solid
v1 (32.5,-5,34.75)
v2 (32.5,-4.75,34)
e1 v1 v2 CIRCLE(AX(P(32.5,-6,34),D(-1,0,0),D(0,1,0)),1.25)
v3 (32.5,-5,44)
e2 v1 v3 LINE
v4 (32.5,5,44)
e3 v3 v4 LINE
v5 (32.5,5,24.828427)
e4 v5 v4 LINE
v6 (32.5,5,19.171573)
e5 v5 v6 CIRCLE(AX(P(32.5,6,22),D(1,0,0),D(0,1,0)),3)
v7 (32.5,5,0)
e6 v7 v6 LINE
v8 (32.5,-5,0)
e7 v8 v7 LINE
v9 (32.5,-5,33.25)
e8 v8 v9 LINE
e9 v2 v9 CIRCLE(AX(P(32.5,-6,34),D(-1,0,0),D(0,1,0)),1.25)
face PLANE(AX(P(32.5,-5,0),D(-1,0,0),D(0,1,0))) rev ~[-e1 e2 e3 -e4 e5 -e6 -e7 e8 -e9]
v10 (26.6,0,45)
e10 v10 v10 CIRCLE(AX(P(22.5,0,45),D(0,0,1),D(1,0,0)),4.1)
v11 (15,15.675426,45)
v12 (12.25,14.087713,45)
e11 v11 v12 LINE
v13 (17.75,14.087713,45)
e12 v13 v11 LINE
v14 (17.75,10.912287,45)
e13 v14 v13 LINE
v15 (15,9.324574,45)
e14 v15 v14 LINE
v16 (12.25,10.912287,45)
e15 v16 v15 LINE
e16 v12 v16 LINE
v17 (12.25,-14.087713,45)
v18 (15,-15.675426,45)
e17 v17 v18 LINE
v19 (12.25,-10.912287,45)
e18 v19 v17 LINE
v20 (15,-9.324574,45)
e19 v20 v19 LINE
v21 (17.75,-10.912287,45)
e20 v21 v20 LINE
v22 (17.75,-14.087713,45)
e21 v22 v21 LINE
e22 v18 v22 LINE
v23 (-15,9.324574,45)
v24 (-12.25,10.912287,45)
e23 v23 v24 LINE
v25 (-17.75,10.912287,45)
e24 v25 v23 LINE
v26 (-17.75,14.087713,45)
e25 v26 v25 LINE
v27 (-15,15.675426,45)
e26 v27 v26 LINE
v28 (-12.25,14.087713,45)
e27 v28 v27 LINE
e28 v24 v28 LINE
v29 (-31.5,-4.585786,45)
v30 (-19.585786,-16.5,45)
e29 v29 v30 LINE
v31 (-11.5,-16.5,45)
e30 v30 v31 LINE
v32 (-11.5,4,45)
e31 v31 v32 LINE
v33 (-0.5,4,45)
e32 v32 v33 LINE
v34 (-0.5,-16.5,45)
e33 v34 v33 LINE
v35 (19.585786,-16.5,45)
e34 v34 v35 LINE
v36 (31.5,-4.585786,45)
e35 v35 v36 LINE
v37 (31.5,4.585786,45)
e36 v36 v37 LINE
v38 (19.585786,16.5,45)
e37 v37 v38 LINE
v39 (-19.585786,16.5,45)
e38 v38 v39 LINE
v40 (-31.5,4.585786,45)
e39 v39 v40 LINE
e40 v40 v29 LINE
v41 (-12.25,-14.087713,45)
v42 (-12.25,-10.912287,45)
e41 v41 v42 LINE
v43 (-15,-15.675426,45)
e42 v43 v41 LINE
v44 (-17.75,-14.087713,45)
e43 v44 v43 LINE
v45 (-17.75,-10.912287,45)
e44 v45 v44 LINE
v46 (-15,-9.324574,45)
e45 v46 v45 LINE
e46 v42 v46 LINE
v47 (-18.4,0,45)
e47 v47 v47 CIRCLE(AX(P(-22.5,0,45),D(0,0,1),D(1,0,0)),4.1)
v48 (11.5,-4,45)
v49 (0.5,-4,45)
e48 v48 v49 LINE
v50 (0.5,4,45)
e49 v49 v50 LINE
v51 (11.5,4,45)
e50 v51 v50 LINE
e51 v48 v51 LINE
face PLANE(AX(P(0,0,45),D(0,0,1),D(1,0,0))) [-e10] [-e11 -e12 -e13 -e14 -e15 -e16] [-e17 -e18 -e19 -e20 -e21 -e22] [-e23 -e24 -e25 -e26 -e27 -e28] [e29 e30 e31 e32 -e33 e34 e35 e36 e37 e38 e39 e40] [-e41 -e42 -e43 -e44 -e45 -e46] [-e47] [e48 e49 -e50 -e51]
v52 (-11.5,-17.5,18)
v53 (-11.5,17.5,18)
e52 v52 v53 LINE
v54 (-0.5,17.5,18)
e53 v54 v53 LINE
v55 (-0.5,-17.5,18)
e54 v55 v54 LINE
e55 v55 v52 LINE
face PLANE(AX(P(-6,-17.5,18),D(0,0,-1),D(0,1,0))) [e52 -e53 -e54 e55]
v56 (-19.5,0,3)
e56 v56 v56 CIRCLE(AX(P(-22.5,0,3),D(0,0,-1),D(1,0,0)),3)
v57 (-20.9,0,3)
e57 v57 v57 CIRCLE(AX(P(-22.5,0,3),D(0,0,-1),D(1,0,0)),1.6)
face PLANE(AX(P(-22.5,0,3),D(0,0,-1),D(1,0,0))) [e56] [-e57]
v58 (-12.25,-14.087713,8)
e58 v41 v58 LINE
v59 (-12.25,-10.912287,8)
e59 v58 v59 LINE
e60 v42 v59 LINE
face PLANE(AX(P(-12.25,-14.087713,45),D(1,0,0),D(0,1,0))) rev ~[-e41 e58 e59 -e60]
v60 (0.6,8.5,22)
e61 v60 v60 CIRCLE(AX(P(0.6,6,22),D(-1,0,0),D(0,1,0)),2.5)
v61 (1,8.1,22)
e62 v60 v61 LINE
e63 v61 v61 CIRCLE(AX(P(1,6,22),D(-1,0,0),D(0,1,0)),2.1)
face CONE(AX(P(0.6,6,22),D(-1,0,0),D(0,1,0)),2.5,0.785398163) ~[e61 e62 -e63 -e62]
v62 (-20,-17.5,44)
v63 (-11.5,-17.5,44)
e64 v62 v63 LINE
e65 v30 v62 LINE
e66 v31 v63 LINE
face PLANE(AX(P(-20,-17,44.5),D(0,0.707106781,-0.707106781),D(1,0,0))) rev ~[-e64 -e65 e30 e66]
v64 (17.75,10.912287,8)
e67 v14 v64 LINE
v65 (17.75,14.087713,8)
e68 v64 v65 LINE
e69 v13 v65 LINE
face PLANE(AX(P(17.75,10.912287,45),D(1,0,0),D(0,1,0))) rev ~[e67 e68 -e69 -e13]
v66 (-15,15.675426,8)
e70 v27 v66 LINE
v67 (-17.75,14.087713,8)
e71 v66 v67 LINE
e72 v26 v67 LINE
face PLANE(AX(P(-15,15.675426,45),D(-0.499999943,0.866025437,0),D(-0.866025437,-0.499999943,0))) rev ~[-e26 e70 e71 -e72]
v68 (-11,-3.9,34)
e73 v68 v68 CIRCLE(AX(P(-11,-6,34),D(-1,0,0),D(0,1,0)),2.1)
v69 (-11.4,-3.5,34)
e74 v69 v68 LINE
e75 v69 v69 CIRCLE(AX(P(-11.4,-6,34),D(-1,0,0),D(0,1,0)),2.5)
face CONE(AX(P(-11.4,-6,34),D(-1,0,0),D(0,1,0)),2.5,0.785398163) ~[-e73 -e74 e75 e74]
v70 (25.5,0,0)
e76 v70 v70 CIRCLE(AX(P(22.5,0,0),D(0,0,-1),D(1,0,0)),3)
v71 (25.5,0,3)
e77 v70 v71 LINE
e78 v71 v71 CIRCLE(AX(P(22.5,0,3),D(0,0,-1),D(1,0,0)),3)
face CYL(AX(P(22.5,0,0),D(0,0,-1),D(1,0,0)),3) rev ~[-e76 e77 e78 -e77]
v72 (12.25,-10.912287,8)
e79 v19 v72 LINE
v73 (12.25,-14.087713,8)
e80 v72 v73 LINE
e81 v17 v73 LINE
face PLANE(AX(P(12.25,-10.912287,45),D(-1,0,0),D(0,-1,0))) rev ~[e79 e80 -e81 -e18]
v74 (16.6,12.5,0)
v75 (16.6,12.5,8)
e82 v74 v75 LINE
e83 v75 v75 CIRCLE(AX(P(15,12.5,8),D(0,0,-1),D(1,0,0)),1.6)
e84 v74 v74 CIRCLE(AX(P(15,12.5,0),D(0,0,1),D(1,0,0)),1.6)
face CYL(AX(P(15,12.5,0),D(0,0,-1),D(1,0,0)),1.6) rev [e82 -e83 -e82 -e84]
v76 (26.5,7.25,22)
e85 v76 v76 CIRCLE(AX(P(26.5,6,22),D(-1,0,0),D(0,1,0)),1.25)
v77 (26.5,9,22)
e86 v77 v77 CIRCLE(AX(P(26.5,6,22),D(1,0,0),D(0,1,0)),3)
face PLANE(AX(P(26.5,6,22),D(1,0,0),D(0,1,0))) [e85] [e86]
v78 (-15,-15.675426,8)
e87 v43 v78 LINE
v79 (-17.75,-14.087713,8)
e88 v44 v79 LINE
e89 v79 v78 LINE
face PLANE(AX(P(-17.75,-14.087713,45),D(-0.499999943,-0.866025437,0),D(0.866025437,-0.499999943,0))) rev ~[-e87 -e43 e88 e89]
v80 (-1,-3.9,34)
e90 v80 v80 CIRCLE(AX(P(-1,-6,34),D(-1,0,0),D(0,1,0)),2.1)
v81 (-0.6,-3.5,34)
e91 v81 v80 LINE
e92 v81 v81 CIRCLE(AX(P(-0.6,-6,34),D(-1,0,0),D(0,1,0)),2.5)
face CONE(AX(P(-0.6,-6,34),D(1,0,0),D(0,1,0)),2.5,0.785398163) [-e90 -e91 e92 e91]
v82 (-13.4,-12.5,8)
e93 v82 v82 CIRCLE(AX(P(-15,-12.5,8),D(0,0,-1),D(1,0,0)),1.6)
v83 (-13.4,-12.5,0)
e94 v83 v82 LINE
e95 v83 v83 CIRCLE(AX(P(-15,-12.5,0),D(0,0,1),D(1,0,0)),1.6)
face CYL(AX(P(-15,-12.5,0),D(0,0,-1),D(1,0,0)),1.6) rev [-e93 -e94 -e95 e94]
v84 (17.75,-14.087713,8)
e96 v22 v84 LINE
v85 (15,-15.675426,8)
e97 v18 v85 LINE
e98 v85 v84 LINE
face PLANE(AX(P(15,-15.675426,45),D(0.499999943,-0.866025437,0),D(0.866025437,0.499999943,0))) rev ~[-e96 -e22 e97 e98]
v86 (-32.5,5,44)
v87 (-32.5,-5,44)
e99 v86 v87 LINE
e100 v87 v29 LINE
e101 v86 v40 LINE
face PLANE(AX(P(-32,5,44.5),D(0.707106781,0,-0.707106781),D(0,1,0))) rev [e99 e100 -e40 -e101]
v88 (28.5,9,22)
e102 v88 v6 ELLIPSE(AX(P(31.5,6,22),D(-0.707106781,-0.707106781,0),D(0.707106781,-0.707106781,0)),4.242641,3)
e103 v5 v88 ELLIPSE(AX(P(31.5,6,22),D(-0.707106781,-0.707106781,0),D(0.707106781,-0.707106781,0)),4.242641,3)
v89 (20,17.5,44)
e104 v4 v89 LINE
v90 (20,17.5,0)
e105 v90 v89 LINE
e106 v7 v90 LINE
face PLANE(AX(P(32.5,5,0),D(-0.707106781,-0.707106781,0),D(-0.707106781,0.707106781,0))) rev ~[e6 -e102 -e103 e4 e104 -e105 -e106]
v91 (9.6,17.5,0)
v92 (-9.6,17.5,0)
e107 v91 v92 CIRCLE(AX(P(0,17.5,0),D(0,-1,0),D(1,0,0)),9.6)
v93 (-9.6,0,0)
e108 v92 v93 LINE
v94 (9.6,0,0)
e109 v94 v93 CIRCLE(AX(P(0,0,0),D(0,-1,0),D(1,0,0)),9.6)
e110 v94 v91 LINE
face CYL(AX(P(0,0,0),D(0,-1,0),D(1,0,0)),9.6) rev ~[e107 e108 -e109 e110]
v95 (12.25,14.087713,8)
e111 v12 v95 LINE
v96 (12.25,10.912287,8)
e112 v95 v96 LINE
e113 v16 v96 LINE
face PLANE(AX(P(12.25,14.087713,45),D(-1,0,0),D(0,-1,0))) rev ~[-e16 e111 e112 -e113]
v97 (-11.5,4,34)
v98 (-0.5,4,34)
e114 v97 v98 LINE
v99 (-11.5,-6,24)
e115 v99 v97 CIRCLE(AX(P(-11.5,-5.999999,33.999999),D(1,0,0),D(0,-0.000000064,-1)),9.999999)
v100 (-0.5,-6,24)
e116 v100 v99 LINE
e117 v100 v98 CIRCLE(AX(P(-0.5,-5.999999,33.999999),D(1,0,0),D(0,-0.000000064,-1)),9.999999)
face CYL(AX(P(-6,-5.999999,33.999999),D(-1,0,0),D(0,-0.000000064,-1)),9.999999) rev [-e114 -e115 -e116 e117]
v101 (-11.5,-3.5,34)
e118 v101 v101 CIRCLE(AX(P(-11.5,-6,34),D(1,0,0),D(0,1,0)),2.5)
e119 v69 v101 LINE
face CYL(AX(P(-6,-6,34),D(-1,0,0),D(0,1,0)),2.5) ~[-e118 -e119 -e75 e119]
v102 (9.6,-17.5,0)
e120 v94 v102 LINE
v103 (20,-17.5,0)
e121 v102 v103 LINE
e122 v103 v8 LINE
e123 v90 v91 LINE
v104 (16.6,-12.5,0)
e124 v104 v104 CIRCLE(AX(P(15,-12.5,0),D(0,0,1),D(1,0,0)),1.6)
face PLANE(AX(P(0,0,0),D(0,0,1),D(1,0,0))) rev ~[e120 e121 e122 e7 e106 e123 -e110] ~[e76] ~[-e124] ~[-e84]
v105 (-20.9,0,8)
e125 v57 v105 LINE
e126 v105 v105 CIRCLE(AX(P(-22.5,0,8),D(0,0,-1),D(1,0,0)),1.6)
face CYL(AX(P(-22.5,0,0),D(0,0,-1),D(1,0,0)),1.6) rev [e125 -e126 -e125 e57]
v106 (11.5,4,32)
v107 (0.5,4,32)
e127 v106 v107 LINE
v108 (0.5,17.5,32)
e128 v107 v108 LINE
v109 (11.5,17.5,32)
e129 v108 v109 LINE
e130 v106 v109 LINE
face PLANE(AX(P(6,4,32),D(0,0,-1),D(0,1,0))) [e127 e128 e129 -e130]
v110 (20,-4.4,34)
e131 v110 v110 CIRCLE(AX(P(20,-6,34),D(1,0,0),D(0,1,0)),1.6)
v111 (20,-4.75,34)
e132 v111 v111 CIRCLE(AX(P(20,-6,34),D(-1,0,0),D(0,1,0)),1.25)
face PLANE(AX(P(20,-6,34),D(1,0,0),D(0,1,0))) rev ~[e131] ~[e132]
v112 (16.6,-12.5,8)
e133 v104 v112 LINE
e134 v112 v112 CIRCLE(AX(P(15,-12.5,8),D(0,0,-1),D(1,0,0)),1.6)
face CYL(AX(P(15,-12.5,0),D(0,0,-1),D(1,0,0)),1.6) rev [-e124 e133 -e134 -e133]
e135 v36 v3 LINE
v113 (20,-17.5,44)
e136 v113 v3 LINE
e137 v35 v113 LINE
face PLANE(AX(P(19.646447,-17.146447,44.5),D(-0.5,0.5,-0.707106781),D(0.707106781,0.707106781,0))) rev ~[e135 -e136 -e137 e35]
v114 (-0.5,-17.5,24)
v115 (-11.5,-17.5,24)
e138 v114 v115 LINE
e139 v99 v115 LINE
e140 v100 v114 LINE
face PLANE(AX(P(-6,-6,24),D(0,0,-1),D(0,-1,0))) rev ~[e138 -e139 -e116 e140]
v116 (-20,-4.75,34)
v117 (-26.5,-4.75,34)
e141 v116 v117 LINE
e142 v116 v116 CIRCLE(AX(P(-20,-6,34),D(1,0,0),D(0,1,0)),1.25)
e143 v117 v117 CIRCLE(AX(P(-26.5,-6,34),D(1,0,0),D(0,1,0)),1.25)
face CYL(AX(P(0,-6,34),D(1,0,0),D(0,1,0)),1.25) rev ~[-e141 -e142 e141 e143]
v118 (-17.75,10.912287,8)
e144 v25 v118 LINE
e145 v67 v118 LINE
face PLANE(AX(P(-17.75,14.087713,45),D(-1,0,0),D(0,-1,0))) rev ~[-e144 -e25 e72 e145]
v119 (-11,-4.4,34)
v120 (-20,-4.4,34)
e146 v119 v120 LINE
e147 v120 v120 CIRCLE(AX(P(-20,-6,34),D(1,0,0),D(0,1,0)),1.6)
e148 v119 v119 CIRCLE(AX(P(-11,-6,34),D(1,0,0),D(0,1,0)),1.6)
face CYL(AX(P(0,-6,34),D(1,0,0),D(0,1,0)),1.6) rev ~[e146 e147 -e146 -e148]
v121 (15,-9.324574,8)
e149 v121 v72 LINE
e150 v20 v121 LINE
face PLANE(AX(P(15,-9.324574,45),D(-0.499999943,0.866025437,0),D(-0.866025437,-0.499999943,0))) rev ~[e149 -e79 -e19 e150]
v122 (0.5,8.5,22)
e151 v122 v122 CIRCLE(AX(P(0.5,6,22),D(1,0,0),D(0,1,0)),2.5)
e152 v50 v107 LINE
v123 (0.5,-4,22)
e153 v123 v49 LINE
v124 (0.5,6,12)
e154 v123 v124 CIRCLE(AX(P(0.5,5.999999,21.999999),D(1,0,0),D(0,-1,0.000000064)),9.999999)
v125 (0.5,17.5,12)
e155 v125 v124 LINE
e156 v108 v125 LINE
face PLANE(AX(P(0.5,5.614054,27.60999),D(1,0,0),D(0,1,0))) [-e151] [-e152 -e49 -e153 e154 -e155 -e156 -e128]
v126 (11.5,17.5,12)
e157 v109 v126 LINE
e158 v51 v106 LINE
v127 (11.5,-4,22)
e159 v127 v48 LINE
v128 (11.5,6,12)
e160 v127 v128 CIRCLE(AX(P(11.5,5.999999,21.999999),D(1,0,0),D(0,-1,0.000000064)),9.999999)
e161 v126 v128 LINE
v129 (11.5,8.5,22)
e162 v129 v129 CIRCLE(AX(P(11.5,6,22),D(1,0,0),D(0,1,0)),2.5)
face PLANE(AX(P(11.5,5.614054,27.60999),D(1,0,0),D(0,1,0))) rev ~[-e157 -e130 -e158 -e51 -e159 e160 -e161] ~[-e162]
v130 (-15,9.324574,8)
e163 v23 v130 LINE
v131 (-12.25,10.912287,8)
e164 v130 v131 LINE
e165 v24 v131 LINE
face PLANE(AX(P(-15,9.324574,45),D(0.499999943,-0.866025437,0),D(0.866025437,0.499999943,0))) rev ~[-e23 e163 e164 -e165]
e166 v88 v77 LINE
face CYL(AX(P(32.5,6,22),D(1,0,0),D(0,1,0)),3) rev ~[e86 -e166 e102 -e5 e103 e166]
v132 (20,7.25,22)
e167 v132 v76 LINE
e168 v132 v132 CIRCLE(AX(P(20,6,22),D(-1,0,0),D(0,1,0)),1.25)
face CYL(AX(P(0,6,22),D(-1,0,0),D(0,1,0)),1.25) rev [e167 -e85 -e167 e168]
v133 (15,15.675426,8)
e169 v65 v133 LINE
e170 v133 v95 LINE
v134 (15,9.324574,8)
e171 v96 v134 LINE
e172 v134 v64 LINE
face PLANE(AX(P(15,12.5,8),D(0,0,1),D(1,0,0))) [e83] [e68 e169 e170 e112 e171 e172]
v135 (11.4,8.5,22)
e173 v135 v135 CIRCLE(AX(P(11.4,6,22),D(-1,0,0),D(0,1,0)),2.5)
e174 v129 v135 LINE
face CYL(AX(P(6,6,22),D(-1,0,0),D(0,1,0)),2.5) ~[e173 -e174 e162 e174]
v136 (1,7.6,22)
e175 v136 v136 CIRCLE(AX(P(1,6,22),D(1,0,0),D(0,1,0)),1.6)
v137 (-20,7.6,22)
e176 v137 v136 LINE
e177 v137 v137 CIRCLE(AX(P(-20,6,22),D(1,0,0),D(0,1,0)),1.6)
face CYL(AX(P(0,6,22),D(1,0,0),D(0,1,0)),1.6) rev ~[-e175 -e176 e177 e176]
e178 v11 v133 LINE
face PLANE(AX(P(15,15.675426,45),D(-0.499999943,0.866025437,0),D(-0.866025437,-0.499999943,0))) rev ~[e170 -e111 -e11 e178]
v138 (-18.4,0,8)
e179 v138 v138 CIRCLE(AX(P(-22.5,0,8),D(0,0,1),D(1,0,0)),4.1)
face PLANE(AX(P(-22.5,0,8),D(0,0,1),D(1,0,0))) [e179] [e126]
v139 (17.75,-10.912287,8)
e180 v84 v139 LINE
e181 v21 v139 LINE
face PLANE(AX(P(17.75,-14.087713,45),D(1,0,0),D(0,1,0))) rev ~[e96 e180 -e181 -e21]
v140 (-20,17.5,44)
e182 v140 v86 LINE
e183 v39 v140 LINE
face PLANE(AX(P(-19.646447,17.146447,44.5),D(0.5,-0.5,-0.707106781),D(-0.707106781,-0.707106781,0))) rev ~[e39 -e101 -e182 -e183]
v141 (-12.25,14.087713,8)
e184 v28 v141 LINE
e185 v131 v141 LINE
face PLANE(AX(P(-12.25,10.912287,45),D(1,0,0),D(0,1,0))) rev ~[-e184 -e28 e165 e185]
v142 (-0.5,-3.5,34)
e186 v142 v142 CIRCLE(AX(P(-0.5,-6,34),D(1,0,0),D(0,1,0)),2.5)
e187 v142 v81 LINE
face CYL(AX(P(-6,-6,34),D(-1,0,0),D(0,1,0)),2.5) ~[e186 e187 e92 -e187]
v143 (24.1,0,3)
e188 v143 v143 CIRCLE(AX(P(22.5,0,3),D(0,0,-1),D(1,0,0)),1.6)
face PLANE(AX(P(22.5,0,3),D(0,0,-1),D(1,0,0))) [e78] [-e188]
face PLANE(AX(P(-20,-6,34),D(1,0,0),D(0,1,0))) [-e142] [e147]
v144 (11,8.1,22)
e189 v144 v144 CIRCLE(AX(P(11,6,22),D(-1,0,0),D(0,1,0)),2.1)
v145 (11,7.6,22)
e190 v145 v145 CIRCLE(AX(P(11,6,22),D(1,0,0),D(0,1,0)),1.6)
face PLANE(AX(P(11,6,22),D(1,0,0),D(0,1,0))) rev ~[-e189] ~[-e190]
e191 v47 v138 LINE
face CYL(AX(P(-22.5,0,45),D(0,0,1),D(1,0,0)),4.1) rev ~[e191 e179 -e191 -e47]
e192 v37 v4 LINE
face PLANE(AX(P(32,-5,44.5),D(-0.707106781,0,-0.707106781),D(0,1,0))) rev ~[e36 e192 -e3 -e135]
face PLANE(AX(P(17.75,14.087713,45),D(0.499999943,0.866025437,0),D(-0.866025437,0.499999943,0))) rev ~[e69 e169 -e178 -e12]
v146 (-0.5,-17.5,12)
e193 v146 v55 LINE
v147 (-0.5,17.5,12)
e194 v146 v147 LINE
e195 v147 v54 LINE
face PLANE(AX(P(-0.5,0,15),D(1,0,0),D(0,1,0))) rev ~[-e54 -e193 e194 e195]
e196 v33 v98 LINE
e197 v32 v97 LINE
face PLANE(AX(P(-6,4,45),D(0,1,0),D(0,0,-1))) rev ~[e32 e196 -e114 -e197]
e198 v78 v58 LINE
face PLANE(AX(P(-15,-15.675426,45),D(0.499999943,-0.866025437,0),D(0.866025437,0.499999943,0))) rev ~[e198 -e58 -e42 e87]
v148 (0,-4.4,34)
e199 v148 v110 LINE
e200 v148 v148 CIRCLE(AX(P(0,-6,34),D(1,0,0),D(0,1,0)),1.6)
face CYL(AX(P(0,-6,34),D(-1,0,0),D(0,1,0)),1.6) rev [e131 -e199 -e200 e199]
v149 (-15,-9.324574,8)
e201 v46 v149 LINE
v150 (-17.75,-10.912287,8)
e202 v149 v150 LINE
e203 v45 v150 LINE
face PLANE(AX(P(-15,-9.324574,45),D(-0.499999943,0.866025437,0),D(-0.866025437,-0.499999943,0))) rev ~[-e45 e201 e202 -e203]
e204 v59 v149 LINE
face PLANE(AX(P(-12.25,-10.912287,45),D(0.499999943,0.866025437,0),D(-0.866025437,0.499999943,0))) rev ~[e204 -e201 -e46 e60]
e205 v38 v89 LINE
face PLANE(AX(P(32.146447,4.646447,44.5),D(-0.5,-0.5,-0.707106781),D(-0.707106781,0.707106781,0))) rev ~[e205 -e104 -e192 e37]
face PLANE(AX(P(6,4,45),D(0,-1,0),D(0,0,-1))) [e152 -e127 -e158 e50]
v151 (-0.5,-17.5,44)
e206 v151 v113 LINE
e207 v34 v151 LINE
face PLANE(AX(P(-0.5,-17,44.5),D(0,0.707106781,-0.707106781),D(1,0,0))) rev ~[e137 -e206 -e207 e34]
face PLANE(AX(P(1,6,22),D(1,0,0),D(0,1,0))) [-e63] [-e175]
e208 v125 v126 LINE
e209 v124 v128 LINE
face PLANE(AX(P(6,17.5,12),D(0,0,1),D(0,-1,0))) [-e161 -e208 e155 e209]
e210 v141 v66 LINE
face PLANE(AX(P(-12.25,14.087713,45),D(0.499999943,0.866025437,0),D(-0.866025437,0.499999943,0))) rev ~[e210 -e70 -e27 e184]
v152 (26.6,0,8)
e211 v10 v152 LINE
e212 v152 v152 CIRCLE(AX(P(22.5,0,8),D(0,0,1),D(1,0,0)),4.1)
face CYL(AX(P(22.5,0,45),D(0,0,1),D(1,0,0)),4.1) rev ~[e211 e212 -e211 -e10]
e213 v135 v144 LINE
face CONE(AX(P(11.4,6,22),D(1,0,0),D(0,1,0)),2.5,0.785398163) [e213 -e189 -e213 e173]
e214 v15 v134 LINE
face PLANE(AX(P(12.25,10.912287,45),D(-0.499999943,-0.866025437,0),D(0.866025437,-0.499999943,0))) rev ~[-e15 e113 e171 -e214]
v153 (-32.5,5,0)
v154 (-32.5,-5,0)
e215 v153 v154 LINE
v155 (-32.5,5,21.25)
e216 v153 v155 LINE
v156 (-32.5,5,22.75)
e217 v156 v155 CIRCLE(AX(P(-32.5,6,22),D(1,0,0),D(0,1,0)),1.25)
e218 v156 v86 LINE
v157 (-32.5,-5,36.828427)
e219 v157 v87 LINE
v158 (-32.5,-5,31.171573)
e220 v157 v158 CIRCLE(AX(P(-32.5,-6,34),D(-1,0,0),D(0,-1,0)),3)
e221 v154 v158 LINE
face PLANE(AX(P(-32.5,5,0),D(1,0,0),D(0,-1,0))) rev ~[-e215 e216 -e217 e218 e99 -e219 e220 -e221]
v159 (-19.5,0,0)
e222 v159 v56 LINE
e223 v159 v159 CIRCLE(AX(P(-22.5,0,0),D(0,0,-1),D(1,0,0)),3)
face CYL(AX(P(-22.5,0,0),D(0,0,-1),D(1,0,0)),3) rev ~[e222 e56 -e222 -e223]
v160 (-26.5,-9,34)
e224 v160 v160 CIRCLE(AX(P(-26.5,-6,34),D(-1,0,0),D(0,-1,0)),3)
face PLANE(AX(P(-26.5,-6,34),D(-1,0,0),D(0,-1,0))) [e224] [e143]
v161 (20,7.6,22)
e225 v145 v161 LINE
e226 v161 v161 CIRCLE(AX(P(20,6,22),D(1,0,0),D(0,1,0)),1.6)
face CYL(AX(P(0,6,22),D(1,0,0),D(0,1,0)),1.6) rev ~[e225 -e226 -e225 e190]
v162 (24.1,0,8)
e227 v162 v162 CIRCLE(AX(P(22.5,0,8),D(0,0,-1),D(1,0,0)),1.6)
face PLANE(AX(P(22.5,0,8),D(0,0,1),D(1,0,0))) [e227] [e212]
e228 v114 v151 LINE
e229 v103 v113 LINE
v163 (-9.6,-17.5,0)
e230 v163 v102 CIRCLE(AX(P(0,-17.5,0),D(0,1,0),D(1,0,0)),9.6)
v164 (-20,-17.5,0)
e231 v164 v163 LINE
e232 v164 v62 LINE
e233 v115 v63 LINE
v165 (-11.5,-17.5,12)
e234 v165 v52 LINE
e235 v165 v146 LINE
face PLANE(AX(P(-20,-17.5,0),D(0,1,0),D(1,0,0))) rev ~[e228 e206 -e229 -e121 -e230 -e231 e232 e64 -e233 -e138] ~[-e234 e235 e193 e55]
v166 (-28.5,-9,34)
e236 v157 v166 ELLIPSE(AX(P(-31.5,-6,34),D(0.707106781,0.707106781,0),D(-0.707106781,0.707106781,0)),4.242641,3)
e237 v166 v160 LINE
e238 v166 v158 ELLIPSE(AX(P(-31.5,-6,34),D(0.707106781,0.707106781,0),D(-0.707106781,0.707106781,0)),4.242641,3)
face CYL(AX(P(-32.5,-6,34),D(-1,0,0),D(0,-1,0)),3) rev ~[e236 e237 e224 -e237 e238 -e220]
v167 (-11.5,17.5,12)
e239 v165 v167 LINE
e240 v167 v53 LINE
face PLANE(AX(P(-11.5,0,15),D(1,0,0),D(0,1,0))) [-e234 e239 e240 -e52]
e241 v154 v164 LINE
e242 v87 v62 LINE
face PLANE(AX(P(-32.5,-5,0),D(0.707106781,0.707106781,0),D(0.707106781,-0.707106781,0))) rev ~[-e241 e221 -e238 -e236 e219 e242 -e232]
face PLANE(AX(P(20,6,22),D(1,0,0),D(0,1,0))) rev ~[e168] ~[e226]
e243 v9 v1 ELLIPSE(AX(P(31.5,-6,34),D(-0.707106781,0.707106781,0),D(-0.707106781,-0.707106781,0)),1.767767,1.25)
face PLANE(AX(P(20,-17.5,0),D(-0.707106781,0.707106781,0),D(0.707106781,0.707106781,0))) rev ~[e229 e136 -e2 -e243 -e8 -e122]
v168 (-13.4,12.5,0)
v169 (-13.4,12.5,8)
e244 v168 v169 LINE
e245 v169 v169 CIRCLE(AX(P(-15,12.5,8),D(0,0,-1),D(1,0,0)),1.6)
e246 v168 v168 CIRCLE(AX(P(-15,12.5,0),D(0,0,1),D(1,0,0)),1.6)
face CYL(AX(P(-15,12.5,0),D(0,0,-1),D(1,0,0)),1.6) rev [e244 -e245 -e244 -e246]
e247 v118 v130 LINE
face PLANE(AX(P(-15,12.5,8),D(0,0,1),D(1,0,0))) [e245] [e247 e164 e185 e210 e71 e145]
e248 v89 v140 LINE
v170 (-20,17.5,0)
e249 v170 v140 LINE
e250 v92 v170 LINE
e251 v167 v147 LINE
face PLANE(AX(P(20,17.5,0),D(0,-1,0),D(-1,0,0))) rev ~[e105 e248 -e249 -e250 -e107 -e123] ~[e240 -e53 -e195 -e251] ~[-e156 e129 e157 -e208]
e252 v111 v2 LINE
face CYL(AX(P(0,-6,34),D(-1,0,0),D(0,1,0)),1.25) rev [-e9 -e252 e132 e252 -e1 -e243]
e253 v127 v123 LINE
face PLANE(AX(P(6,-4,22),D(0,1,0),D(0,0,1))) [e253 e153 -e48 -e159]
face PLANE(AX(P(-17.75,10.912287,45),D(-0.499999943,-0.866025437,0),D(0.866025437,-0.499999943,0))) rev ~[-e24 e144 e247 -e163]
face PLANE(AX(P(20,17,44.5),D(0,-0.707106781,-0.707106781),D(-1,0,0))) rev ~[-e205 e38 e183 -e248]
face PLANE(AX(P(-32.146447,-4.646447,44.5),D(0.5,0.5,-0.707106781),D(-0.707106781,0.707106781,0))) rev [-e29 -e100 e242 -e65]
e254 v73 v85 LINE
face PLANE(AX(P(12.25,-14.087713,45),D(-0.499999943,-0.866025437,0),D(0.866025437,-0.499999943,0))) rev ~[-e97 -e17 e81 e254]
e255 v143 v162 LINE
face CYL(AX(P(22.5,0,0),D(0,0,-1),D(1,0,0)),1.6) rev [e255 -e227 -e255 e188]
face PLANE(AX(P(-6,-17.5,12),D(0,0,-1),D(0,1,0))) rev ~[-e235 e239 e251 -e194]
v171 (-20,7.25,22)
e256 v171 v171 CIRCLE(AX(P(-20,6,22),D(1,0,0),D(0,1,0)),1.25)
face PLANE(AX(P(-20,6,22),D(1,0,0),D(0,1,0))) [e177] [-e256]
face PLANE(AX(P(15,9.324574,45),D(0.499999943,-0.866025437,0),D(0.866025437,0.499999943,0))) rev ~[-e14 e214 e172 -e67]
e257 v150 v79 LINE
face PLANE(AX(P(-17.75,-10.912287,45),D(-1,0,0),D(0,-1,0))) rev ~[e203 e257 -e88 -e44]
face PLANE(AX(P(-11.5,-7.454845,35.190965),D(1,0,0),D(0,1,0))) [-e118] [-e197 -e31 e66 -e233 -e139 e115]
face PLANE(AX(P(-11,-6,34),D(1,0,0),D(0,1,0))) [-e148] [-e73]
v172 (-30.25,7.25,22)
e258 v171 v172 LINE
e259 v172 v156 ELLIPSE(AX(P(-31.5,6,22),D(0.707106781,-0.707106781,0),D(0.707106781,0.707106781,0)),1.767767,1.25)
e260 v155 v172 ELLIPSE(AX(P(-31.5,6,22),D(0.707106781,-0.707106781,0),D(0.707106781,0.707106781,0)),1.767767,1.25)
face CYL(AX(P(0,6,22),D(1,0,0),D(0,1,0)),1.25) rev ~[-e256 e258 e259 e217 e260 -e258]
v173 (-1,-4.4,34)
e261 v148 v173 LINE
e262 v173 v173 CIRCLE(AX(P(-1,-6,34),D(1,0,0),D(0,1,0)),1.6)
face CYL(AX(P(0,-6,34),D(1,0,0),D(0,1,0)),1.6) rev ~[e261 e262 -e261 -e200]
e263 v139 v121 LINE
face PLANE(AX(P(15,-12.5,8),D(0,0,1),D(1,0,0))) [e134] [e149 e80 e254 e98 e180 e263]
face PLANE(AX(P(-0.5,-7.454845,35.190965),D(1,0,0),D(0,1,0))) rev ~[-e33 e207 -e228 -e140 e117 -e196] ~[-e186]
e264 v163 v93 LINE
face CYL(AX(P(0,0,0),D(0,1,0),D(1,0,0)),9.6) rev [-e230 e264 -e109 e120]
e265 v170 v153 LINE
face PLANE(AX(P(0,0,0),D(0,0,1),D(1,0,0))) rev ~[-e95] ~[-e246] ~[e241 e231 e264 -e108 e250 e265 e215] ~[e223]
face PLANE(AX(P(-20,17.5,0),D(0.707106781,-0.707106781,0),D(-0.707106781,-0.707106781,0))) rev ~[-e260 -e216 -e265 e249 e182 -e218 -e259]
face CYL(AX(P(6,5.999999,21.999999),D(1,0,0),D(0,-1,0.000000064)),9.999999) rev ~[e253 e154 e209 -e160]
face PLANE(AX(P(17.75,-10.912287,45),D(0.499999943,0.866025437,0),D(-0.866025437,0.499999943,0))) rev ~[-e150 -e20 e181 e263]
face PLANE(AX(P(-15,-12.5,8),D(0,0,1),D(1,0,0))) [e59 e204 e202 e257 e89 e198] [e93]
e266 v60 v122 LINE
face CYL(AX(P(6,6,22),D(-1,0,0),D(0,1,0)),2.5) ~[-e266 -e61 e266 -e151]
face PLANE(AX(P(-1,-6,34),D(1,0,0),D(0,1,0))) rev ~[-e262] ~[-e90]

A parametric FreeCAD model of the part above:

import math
import FreeCAD as App
import Part
import Sketcher
Q = App.Units.Quantity


def edges_at(feature, points):
    """Names of the edges that pass closest to the given points."""
    edges = feature.Shape.Edges
    near = lambda p: min(range(len(edges)), key=lambda i: edges[i].distToShape(Part.Vertex(*p))[0])
    return sorted({f"Edge{near(p) + 1}" for p in points})

doc = App.newDocument("Part")
body = doc.addObject("PartDesign::Body", "Body")

# Sketch on XY plane
sketch1 = doc.addObject("Sketcher::SketchObject", "Sketch")
body.addObject(sketch1)
sketch1.AttachmentSupport = (doc.XY_Plane, [""])
sketch1.MapMode = "FlatFace"
sketch1.addGeometry([
    Part.LineSegment(App.Vector(-32.5, 5, 0), App.Vector(-32.5, -5, 0)),  # 0
    Part.LineSegment(App.Vector(-32.5, -5, 0), App.Vector(-20, -17.5, 0)),  # 1
    Part.LineSegment(App.Vector(-20, -17.5, 0), App.Vector(20, -17.5, 0)),  # 2
    Part.LineSegment(App.Vector(20, -17.5, 0), App.Vector(32.5, -5, 0)),  # 3
    Part.LineSegment(App.Vector(32.5, -5, 0), App.Vector(32.5, 5, 0)),  # 4
    Part.LineSegment(App.Vector(32.5, 5, 0), App.Vector(20, 17.5, 0)),  # 5
    Part.LineSegment(App.Vector(20, 17.5, 0), App.Vector(-20, 17.5, 0)),  # 6
    Part.LineSegment(App.Vector(-20, 17.5, 0), App.Vector(-32.5, 5, 0)),  # 7
    Part.Circle(App.Vector(-15, -12.5, 0), App.Vector(0, 0, 1), 1.6),  # 8
    Part.Circle(App.Vector(15, -12.5, 0), App.Vector(0, 0, 1), 1.6),  # 9
    Part.Circle(App.Vector(-22.5, 0, 0), App.Vector(0, 0, 1), 1.6),  # 10
    Part.Circle(App.Vector(-15, 12.5, 0), App.Vector(0, 0, 1), 1.6),  # 11
    Part.Circle(App.Vector(22.5, 0, 0), App.Vector(0, 0, 1), 1.6),  # 12
    Part.Circle(App.Vector(15, 12.5, 0), App.Vector(0, 0, 1), 1.6),  # 13
], False)
sketch1.addConstraint([
    Sketcher.Constraint("Coincident", 0, 2, 1, 1),
    Sketcher.Constraint("Coincident", 1, 2, 2, 1),
    Sketcher.Constraint("Coincident", 2, 2, 3, 1),
    Sketcher.Constraint("Coincident", 3, 2, 4, 1),
    Sketcher.Constraint("Coincident", 4, 2, 5, 1),
    Sketcher.Constraint("Coincident", 5, 2, 6, 1),
    Sketcher.Constraint("Coincident", 6, 2, 7, 1),
    Sketcher.Constraint("Coincident", 7, 2, 0, 1),
    Sketcher.Constraint("Vertical", 0),
    Sketcher.Constraint("Horizontal", 2),
    Sketcher.Constraint("Vertical", 4),
    Sketcher.Constraint("Horizontal", 6),
    Sketcher.Constraint("Equal", 8, 9),
    Sketcher.Constraint("Equal", 9, 10),
    Sketcher.Constraint("Equal", 10, 11),
    Sketcher.Constraint("Equal", 11, 12),
    Sketcher.Constraint("Equal", 12, 13),
    Sketcher.Constraint("Symmetric", 9, 3, 11, 3, -1, 1),
    Sketcher.Constraint("Symmetric", 10, 3, 12, 3, -1, 1),
    Sketcher.Constraint("Symmetric", 8, 3, 13, 3, -1, 1),
    Sketcher.Constraint("Symmetric", 0, 2, 4, 2, -1, 1),
    Sketcher.Constraint("Symmetric", 1, 2, 5, 2, -1, 1),
    Sketcher.Constraint("Symmetric", 8, 3, 9, 3, -2),
    Sketcher.Constraint("PointOnObject", 10, 3, -1),
    Sketcher.Constraint("Perpendicular", 1, 3),
    Sketcher.Constraint("Perpendicular", 5, 7),
    Sketcher.Constraint("Horizontal", 0, 2, 3, 2),
    Sketcher.Constraint("Horizontal", 4, 2, 7, 2),
    Sketcher.Constraint("Vertical", 2, 2, 5, 2),
    Sketcher.Constraint("Diameter", 8, 3.2),
    Sketcher.Constraint("DistanceX", 2, 1, 2, 2, 40.0),
    Sketcher.Constraint("DistanceY", 0, 2, 0, 1, 10.0),
    Sketcher.Constraint("DistanceX", 8, 3, -1, 1, 15.0),
    Sketcher.Constraint("DistanceY", 8, 3, 11, 3, 25.0),
    Sketcher.Constraint("DistanceX", 10, 3, 12, 3, 45.0),
    Sketcher.Constraint("DistanceX", 0, 2, 10, 3, 10.0),
])
pad1 = doc.addObject("PartDesign::Pad", "Pad")
body.addObject(pad1)
pad1.Profile = sketch1
pad1.Length = 45

# Sketch on XY plane
sketch2 = doc.addObject("Sketcher::SketchObject", "Sketch001")
body.addObject(sketch2)
sketch2.AttachmentSupport = (doc.XY_Plane, [""])
sketch2.MapMode = "FlatFace"
sketch2.AttachmentOffset = App.Placement(App.Vector(0, 0, 45), App.Rotation())
sketch2.addGeometry([
    Part.Circle(App.Vector(-22.5, 0, 0), App.Vector(0, 0, 1), 4.1),  # 0
    Part.Circle(App.Vector(22.5, 0, 0), App.Vector(0, 0, 1), 4.1),  # 1
    Part.LineSegment(App.Vector(-12.2, 10.9, 0), App.Vector(-12.2, 14.1, 0)),  # 2
    Part.LineSegment(App.Vector(-12.2, 14.1, 0), App.Vector(-15, 15.7, 0)),  # 3
    Part.LineSegment(App.Vector(-15, 15.7, 0), App.Vector(-17.8, 14.1, 0)),  # 4
    Part.LineSegment(App.Vector(-17.8, 14.1, 0), App.Vector(-17.8, 10.9, 0)),  # 5
    Part.LineSegment(App.Vector(-17.8, 10.9, 0), App.Vector(-15, 9.3, 0)),  # 6
    Part.LineSegment(App.Vector(-15, 9.3, 0), App.Vector(-12.2, 10.9, 0)),  # 7
    Part.LineSegment(App.Vector(17.8, 10.9, 0), App.Vector(17.8, 14.1, 0)),  # 8
    Part.LineSegment(App.Vector(17.8, 14.1, 0), App.Vector(15, 15.7, 0)),  # 9
    Part.LineSegment(App.Vector(15, 15.7, 0), App.Vector(12.2, 14.1, 0)),  # 10
    Part.LineSegment(App.Vector(12.2, 14.1, 0), App.Vector(12.2, 10.9, 0)),  # 11
    Part.LineSegment(App.Vector(12.2, 10.9, 0), App.Vector(15, 9.3, 0)),  # 12
    Part.LineSegment(App.Vector(15, 9.3, 0), App.Vector(17.8, 10.9, 0)),  # 13
    Part.LineSegment(App.Vector(-12.2, -14.1, 0), App.Vector(-12.2, -10.9, 0)),  # 14
    Part.LineSegment(App.Vector(-12.2, -10.9, 0), App.Vector(-15, -9.3, 0)),  # 15
    Part.LineSegment(App.Vector(-15, -9.3, 0), App.Vector(-17.8, -10.9, 0)),  # 16
    Part.LineSegment(App.Vector(-17.8, -10.9, 0), App.Vector(-17.8, -14.1, 0)),  # 17
    Part.LineSegment(App.Vector(-17.8, -14.1, 0), App.Vector(-15, -15.7, 0)),  # 18
    Part.LineSegment(App.Vector(-15, -15.7, 0), App.Vector(-12.2, -14.1, 0)),  # 19
    Part.LineSegment(App.Vector(17.8, -14.1, 0), App.Vector(17.8, -10.9, 0)),  # 20
    Part.LineSegment(App.Vector(17.8, -10.9, 0), App.Vector(15, -9.3, 0)),  # 21
    Part.LineSegment(App.Vector(15, -9.3, 0), App.Vector(12.2, -10.9, 0)),  # 22
    Part.LineSegment(App.Vector(12.2, -10.9, 0), App.Vector(12.2, -14.1, 0)),  # 23
    Part.LineSegment(App.Vector(12.2, -14.1, 0), App.Vector(15, -15.7, 0)),  # 24
    Part.LineSegment(App.Vector(15, -15.7, 0), App.Vector(17.8, -14.1, 0)),  # 25
], False)
sketch2.addConstraint([
    Sketcher.Constraint("Coincident", 2, 2, 3, 1),
    Sketcher.Constraint("Coincident", 3, 2, 4, 1),
    Sketcher.Constraint("Coincident", 4, 2, 5, 1),
    Sketcher.Constraint("Coincident", 5, 2, 6, 1),
    Sketcher.Constraint("Coincident", 6, 2, 7, 1),
    Sketcher.Constraint("Coincident", 7, 2, 2, 1),
    Sketcher.Constraint("Coincident", 8, 2, 9, 1),
    Sketcher.Constraint("Coincident", 9, 2, 10, 1),
    Sketcher.Constraint("Coincident", 10, 2, 11, 1),
    Sketcher.Constraint("Coincident", 11, 2, 12, 1),
    Sketcher.Constraint("Coincident", 12, 2, 13, 1),
    Sketcher.Constraint("Coincident", 13, 2, 8, 1),
    Sketcher.Constraint("Coincident", 14, 2, 15, 1),
    Sketcher.Constraint("Coincident", 15, 2, 16, 1),
    Sketcher.Constraint("Coincident", 16, 2, 17, 1),
    Sketcher.Constraint("Coincident", 17, 2, 18, 1),
    Sketcher.Constraint("Coincident", 18, 2, 19, 1),
    Sketcher.Constraint("Coincident", 19, 2, 14, 1),
    Sketcher.Constraint("Coincident", 20, 2, 21, 1),
    Sketcher.Constraint("Coincident", 21, 2, 22, 1),
    Sketcher.Constraint("Coincident", 22, 2, 23, 1),
    Sketcher.Constraint("Coincident", 23, 2, 24, 1),
    Sketcher.Constraint("Coincident", 24, 2, 25, 1),
    Sketcher.Constraint("Coincident", 25, 2, 20, 1),
    Sketcher.Constraint("Vertical", 2),
    Sketcher.Constraint("Vertical", 5),
    Sketcher.Constraint("Vertical", 8),
    Sketcher.Constraint("Vertical", 11),
    Sketcher.Constraint("Vertical", 14),
    Sketcher.Constraint("Vertical", 17),
    Sketcher.Constraint("Vertical", 20),
    Sketcher.Constraint("Vertical", 23),
    Sketcher.Constraint("Equal", 0, 1),
    Sketcher.Constraint("Symmetric", 0, 3, 1, 3, -1, 1),
    Sketcher.Constraint("Symmetric", 11, 2, 14, 2, -1, 1),
    Sketcher.Constraint("Symmetric", 12, 2, 15, 2, -1, 1),
    Sketcher.Constraint("Symmetric", 13, 2, 16, 2, -1, 1),
    Sketcher.Constraint("Symmetric", 9, 2, 18, 2, -1, 1),
    Sketcher.Constraint("Symmetric", 5, 2, 20, 2, -1, 1),
    Sketcher.Constraint("Symmetric", 6, 2, 21, 2, -1, 1),
    Sketcher.Constraint("Symmetric", 7, 2, 22, 2, -1, 1),
    Sketcher.Constraint("Symmetric", 3, 2, 24, 2, -1, 1),
    Sketcher.Constraint("Symmetric", 4, 2, 8, 2, -2),
    Sketcher.Constraint("Symmetric", 3, 2, 9, 2, -2),
    Sketcher.Constraint("Symmetric", 2, 2, 10, 2, -2),
    Sketcher.Constraint("Symmetric", 6, 2, 12, 2, -2),
    Sketcher.Constraint("PointOnObject", 0, 3, -1),
    Sketcher.Constraint("Parallel", 3, 6),
    Sketcher.Constraint("Parallel", 4, 7),
    Sketcher.Constraint("Parallel", 6, 9),
    Sketcher.Constraint("Parallel", 9, 12),
    Sketcher.Constraint("Parallel", 10, 13),
    Sketcher.Constraint("Parallel", 15, 18),
    Sketcher.Constraint("Parallel", 16, 19),
    Sketcher.Constraint("Parallel", 21, 24),
    Sketcher.Constraint("Parallel", 22, 25),
    Sketcher.Constraint("Horizontal", 2, 2, 4, 2),
    Sketcher.Constraint("Horizontal", 5, 2, 7, 2),
    Sketcher.Constraint("Diameter", 0, 8.2),
    Sketcher.Constraint("Angle", 3, Q("150.000004 deg")),
    Sketcher.Constraint("DistanceX", 3, 2, -1, 1, 15.0),
    Sketcher.Constraint("DistanceX", 0, 3, 1, 3, 45.0),
    Sketcher.Constraint("DistanceY", 14, 2, 2, 2, 25.0),
    Sketcher.Constraint("DistanceX", 4, 2, 2, 2, 5.5),
    Sketcher.Constraint("DistanceY", 2, 1, 2, 2, 3.175426),
])
pocket1 = doc.addObject("PartDesign::Pocket", "Pocket")
body.addObject(pocket1)
pocket1.Profile = sketch2
pocket1.Length = 37

# Sketch on XZ plane
sketch3 = doc.addObject("Sketcher::SketchObject", "Sketch002")
body.addObject(sketch3)
sketch3.AttachmentSupport = (doc.XZ_Plane, [""])
sketch3.MapMode = "FlatFace"
sketch3.addGeometry(Part.Circle(App.Vector(0, 0, 0), App.Vector(0, 0, 1), 10), False)
sketch3.addConstraint([
    Sketcher.Constraint("Coincident", 0, 3, -1, 1),
    Sketcher.Constraint("Diameter", 0, 19.2),
])
pocket2 = doc.addObject("PartDesign::Pocket", "Pocket001")
body.addObject(pocket2)
pocket2.Profile = sketch3
pocket2.Type = "ThroughAll"
pocket2.Midplane = True

# Sketch on YZ plane
sketch4 = doc.addObject("Sketcher::SketchObject", "Sketch003")
body.addObject(sketch4)
sketch4.AttachmentSupport = (doc.YZ_Plane, [""])
sketch4.MapMode = "FlatFace"
sketch4.AttachmentOffset = App.Placement(App.Vector(0, 0, -6), App.Rotation())
sketch4.addGeometry([
    Part.ArcOfCircle(Part.Circle(App.Vector(-6, 34, 0), App.Vector(0, 0, 1), 10), math.radians(-90), math.radians(0)),  # 0
    Part.LineSegment(App.Vector(4, 34, 0), App.Vector(4, 45, 0)),  # 1
    Part.LineSegment(App.Vector(4, 45, 0), App.Vector(-17.5, 45, 0)),  # 2
    Part.LineSegment(App.Vector(-17.5, 45, 0), App.Vector(-17.5, 24, 0)),  # 3
    Part.LineSegment(App.Vector(-17.5, 24, 0), App.Vector(-6, 24, 0)),  # 4
    Part.Circle(App.Vector(-6, 34, 0), App.Vector(0, 0, 1), 2.5),  # 5
    Part.LineSegment(App.Vector(-17.5, 18, 0), App.Vector(-17.5, 12, 0)),  # 6
    Part.LineSegment(App.Vector(-17.5, 12, 0), App.Vector(17.5, 12, 0)),  # 7
    Part.LineSegment(App.Vector(17.5, 12, 0), App.Vector(17.5, 18, 0)),  # 8
    Part.LineSegment(App.Vector(17.5, 18, 0), App.Vector(-17.5, 18, 0)),  # 9
], False)
sketch4.addConstraint([
    Sketcher.Constraint("Tangent", 0, 2, 1, 1),
    Sketcher.Constraint("Coincident", 1, 2, 2, 1),
    Sketcher.Constraint("Coincident", 2, 2, 3, 1),
    Sketcher.Constraint("Coincident", 3, 2, 4, 1),
    Sketcher.Constraint("Tangent", 4, 2, 0, 1),
    Sketcher.Constraint("Coincident", 6, 2, 7, 1),
    Sketcher.Constraint("Coincident", 7, 2, 8, 1),
    Sketcher.Constraint("Coincident", 8, 2, 9, 1),
    Sketcher.Constraint("Coincident", 9, 2, 6, 1),
    Sketcher.Constraint("Vertical", 1),
    Sketcher.Constraint("Horizontal", 2),
    Sketcher.Constraint("Vertical", 3),
    Sketcher.Constraint("Horizontal", 4),
    Sketcher.Constraint("Vertical", 6),
    Sketcher.Constraint("Horizontal", 7),
    Sketcher.Constraint("Vertical", 8),
    Sketcher.Constraint("Horizontal", 9),
    Sketcher.Constraint("Coincident", 5, 3, 0, 3),
    Sketcher.Constraint("Vertical", 3, 2, 6, 2),
    Sketcher.Constraint("Diameter", 5, 5.0),
    Sketcher.Constraint("Radius", 0, 9.999999),
    Sketcher.Constraint("DistanceX", 7, 1, 7, 2, 35.0),
    Sketcher.Constraint("DistanceY", 1, 1, 1, 2, 11.0),
    Sketcher.Constraint("DistanceY", 6, 2, 6, 1, 6.0),
    Sketcher.Constraint("DistanceX", 2, 2, 2, 1, 21.5),
    Sketcher.Constraint("DistanceX", 0, 3, -1, 1, 5.999999),
    Sketcher.Constraint("DistanceY", -1, 1, 0, 3, 33.999999),
    Sketcher.Constraint("DistanceY", -1, 1, 6, 2, 12.0),
])
pocket3 = doc.addObject("PartDesign::Pocket", "Pocket002")
body.addObject(pocket3)
pocket3.Profile = sketch4
pocket3.Length = 11
pocket3.Midplane = True

# Sketch on YZ plane
sketch5 = doc.addObject("Sketcher::SketchObject", "Sketch004")
body.addObject(sketch5)
sketch5.AttachmentSupport = (doc.YZ_Plane, [""])
sketch5.MapMode = "FlatFace"
sketch5.AttachmentOffset = App.Placement(App.Vector(0, 0, -6), App.Rotation())
sketch5.addGeometry(Part.Circle(App.Vector(-6, 34, 0), App.Vector(0, 0, 1), 4), False)
sketch5.addConstraint([
    Sketcher.Constraint("Diameter", 0, 8.0),
    Sketcher.Constraint("DistanceX", 0, 3, -1, 1, 6.0),
    Sketcher.Constraint("DistanceY", -1, 1, 0, 3, 34.0),
])
pocket4 = doc.addObject("PartDesign::Pocket", "Pocket003")
body.addObject(pocket4)
pocket4.Profile = sketch5
pocket4.Length = 10
pocket4.Midplane = True

# Sketch on YZ plane
sketch6 = doc.addObject("Sketcher::SketchObject", "Sketch005")
body.addObject(sketch6)
sketch6.AttachmentSupport = (doc.YZ_Plane, [""])
sketch6.MapMode = "FlatFace"
sketch6.AttachmentOffset = App.Placement(App.Vector(0, 0, 6), App.Rotation())
sketch6.addGeometry([
    Part.ArcOfCircle(Part.Circle(App.Vector(6, 22, 0), App.Vector(0, 0, 1), 10), math.radians(180), math.radians(270)),  # 0
    Part.LineSegment(App.Vector(6, 12, 0), App.Vector(17.5, 12, 0)),  # 1
    Part.LineSegment(App.Vector(17.5, 12, 0), App.Vector(17.5, 32, 0)),  # 2
    Part.LineSegment(App.Vector(17.5, 32, 0), App.Vector(4, 32, 0)),  # 3
    Part.LineSegment(App.Vector(4, 32, 0), App.Vector(4, 45, 0)),  # 4
    Part.LineSegment(App.Vector(4, 45, 0), App.Vector(-4, 45, 0)),  # 5
    Part.LineSegment(App.Vector(-4, 45, 0), App.Vector(-4, 22, 0)),  # 6
    Part.Circle(App.Vector(6, 22, 0), App.Vector(0, 0, 1), 2.5),  # 7
], False)
sketch6.addConstraint([
    Sketcher.Constraint("Tangent", 0, 2, 1, 1),
    Sketcher.Constraint("Coincident", 1, 2, 2, 1),
    Sketcher.Constraint("Coincident", 2, 2, 3, 1),
    Sketcher.Constraint("Coincident", 3, 2, 4, 1),
    Sketcher.Constraint("Coincident", 4, 2, 5, 1),
    Sketcher.Constraint("Coincident", 5, 2, 6, 1),
    Sketcher.Constraint("Tangent", 6, 2, 0, 1),
    Sketcher.Constraint("Horizontal", 1),
    Sketcher.Constraint("Vertical", 2),
    Sketcher.Constraint("Horizontal", 3),
    Sketcher.Constraint("Vertical", 4),
    Sketcher.Constraint("Horizontal", 5),
    Sketcher.Constraint("Vertical", 6),
    Sketcher.Constraint("Coincident", 7, 3, 0, 3),
    Sketcher.Constraint("Diameter", 7, 5.0),
    Sketcher.Constraint("Radius", 0, 9.999999),
    Sketcher.Constraint("DistanceX", 5, 2, 5, 1, 8.0),
    Sketcher.Constraint("DistanceY", 2, 1, 2, 2, 20.0),
    Sketcher.Constraint("DistanceY", 4, 1, 4, 2, 13.0),
    Sketcher.Constraint("DistanceX", 1, 1, 1, 2, 11.5),
    Sketcher.Constraint("DistanceX", -1, 1, 0, 3, 5.999999),
    Sketcher.Constraint("DistanceY", -1, 1, 0, 3, 21.999999),
])
pocket5 = doc.addObject("PartDesign::Pocket", "Pocket004")
body.addObject(pocket5)
pocket5.Profile = sketch6
pocket5.Length = 11
pocket5.Midplane = True

# Sketch on YZ plane
sketch7 = doc.addObject("Sketcher::SketchObject", "Sketch006")
body.addObject(sketch7)
sketch7.AttachmentSupport = (doc.YZ_Plane, [""])
sketch7.MapMode = "FlatFace"
sketch7.AttachmentOffset = App.Placement(App.Vector(0, 0, 6), App.Rotation())
sketch7.addGeometry(Part.Circle(App.Vector(6, 22, 0), App.Vector(0, 0, 1), 4), False)
sketch7.addConstraint([
    Sketcher.Constraint("Diameter", 0, 8.0),
    Sketcher.Constraint("DistanceX", -1, 1, 0, 3, 6.0),
    Sketcher.Constraint("DistanceY", -1, 1, 0, 3, 22.0),
])
pocket6 = doc.addObject("PartDesign::Pocket", "Pocket005")
body.addObject(pocket6)
pocket6.Profile = sketch7
pocket6.Length = 10
pocket6.Midplane = True

# Sketch on YZ plane
sketch8 = doc.addObject("Sketcher::SketchObject", "Sketch007")
body.addObject(sketch8)
sketch8.AttachmentSupport = (doc.YZ_Plane, [""])
sketch8.MapMode = "FlatFace"
sketch8.addGeometry([
    Part.Circle(App.Vector(-6, 34, 0), App.Vector(0, 0, 1), 1.2),
    Part.Circle(App.Vector(6, 22, 0), App.Vector(0, 0, 1), 1.2),
], False)
sketch8.addConstraint([
    Sketcher.Constraint("Equal", 0, 1),
    Sketcher.Constraint("Diameter", 0, 2.5),
    Sketcher.Constraint("DistanceX", 0, 3, -1, 1, 6.0),
    Sketcher.Constraint("DistanceY", -1, 1, 0, 3, 34.0),
    Sketcher.Constraint("DistanceX", -1, 1, 1, 3, 6.0),
    Sketcher.Constraint("DistanceY", -1, 1, 1, 3, 22.0),
])
pocket7 = doc.addObject("PartDesign::Pocket", "Pocket006")
body.addObject(pocket7)
pocket7.Profile = sketch8
pocket7.Type = "ThroughAll"
pocket7.Midplane = True

# Sketch on YZ plane
sketch9 = doc.addObject("Sketcher::SketchObject", "Sketch008")
body.addObject(sketch9)
sketch9.AttachmentSupport = (doc.YZ_Plane, [""])
sketch9.MapMode = "FlatFace"
sketch9.addGeometry([
    Part.Circle(App.Vector(-6, 34, 0), App.Vector(0, 0, 1), 1.6),
    Part.Circle(App.Vector(6, 22, 0), App.Vector(0, 0, 1), 1.6),
], False)
sketch9.addConstraint([
    Sketcher.Constraint("Equal", 0, 1),
    Sketcher.Constraint("Diameter", 0, 3.2),
    Sketcher.Constraint("DistanceX", 0, 3, -1, 1, 6.0),
    Sketcher.Constraint("DistanceY", -1, 1, 0, 3, 34.0),
    Sketcher.Constraint("DistanceX", -1, 1, 1, 3, 6.0),
    Sketcher.Constraint("DistanceY", -1, 1, 1, 3, 22.0),
])
pocket8 = doc.addObject("PartDesign::Pocket", "Pocket007")
body.addObject(pocket8)
pocket8.Profile = sketch9
pocket8.Length = 40
pocket8.Midplane = True

# Sketch on YZ plane
sketch10 = doc.addObject("Sketcher::SketchObject", "Sketch009")
body.addObject(sketch10)
sketch10.AttachmentSupport = (doc.YZ_Plane, [""])
sketch10.MapMode = "FlatFace"
sketch10.AttachmentOffset = App.Placement(App.Vector(0, 0, 32.5), App.Rotation())
sketch10.addGeometry(Part.Circle(App.Vector(6, 22, 0), App.Vector(0, 0, 1), 3), False)
sketch10.addConstraint([
    Sketcher.Constraint("Diameter", 0, 6.0),
    Sketcher.Constraint("DistanceX", -1, 1, 0, 3, 6.0),
    Sketcher.Constraint("DistanceY", -1, 1, 0, 3, 22.0),
])
pocket9 = doc.addObject("PartDesign::Pocket", "Pocket008")
body.addObject(pocket9)
pocket9.Profile = sketch10
pocket9.Length = 6

# Sketch on YZ plane
sketch11 = doc.addObject("Sketcher::SketchObject", "Sketch010")
body.addObject(sketch11)
sketch11.AttachmentSupport = (doc.YZ_Plane, [""])
sketch11.MapMode = "FlatFace"
sketch11.AttachmentOffset = App.Placement(App.Vector(0, 0, -32.5), App.Rotation())
sketch11.addGeometry(Part.Circle(App.Vector(-6, 34, 0), App.Vector(0, 0, 1), 3), False)
sketch11.addConstraint([
    Sketcher.Constraint("Diameter", 0, 6.0),
    Sketcher.Constraint("DistanceX", 0, 3, -1, 1, 6.0),
    Sketcher.Constraint("DistanceY", -1, 1, 0, 3, 34.0),
])
pocket10 = doc.addObject("PartDesign::Pocket", "Pocket009")
body.addObject(pocket10)
pocket10.Profile = sketch11
pocket10.Length = 6
pocket10.Reversed = True

# Sketch on XY plane
sketch12 = doc.addObject("Sketcher::SketchObject", "Sketch011")
body.addObject(sketch12)
sketch12.AttachmentSupport = (doc.XY_Plane, [""])
sketch12.MapMode = "FlatFace"
sketch12.addGeometry([
    Part.Circle(App.Vector(-22.5, 0, 0), App.Vector(0, 0, 1), 3),
    Part.Circle(App.Vector(22.5, 0, 0), App.Vector(0, 0, 1), 3),
], False)
sketch12.addConstraint([
    Sketcher.Constraint("Equal", 0, 1),
    Sketcher.Constraint("Symmetric", 0, 3, 1, 3, -1, 1),
    Sketcher.Constraint("PointOnObject", 0, 3, -1),
    Sketcher.Constraint("Diameter", 0, 6.0),
    Sketcher.Constraint("DistanceX", 0, 3, 1, 3, 45.0),
])
pocket11 = doc.addObject("PartDesign::Pocket", "Pocket010")
body.addObject(pocket11)
pocket11.Profile = sketch12
pocket11.Length = 3
pocket11.Reversed = True
doc.recompute()

chamfer = doc.addObject("PartDesign::Chamfer", "Chamfer")
body.addObject(chamfer)
chamfer.Base = (pocket11, edges_at(pocket11, [
    (-15.75, -17.5, 45),
    (-26.25, -11.25, 45),
    (-32.5, 0, 45),
    (-26.25, 11.25, 45),
    (0, 17.5, 45),
    (26.25, 11.25, 45),
    (32.5, 0, 45),
    (26.25, -11.25, 45),
    (9.75, -17.5, 45),
]))
chamfer.Size = 1
doc.recompute()

chamfer2 = doc.addObject("PartDesign::Chamfer", "Chamfer001")
body.addObject(chamfer2)
chamfer2.Base = (chamfer, edges_at(chamfer, [
    (-11, -8.5, 34),
    (-1, -8.5, 34),
    (1, 3.5, 22),
    (11, 3.5, 22),
]))
chamfer2.Size = 0.4

doc.recompute()
